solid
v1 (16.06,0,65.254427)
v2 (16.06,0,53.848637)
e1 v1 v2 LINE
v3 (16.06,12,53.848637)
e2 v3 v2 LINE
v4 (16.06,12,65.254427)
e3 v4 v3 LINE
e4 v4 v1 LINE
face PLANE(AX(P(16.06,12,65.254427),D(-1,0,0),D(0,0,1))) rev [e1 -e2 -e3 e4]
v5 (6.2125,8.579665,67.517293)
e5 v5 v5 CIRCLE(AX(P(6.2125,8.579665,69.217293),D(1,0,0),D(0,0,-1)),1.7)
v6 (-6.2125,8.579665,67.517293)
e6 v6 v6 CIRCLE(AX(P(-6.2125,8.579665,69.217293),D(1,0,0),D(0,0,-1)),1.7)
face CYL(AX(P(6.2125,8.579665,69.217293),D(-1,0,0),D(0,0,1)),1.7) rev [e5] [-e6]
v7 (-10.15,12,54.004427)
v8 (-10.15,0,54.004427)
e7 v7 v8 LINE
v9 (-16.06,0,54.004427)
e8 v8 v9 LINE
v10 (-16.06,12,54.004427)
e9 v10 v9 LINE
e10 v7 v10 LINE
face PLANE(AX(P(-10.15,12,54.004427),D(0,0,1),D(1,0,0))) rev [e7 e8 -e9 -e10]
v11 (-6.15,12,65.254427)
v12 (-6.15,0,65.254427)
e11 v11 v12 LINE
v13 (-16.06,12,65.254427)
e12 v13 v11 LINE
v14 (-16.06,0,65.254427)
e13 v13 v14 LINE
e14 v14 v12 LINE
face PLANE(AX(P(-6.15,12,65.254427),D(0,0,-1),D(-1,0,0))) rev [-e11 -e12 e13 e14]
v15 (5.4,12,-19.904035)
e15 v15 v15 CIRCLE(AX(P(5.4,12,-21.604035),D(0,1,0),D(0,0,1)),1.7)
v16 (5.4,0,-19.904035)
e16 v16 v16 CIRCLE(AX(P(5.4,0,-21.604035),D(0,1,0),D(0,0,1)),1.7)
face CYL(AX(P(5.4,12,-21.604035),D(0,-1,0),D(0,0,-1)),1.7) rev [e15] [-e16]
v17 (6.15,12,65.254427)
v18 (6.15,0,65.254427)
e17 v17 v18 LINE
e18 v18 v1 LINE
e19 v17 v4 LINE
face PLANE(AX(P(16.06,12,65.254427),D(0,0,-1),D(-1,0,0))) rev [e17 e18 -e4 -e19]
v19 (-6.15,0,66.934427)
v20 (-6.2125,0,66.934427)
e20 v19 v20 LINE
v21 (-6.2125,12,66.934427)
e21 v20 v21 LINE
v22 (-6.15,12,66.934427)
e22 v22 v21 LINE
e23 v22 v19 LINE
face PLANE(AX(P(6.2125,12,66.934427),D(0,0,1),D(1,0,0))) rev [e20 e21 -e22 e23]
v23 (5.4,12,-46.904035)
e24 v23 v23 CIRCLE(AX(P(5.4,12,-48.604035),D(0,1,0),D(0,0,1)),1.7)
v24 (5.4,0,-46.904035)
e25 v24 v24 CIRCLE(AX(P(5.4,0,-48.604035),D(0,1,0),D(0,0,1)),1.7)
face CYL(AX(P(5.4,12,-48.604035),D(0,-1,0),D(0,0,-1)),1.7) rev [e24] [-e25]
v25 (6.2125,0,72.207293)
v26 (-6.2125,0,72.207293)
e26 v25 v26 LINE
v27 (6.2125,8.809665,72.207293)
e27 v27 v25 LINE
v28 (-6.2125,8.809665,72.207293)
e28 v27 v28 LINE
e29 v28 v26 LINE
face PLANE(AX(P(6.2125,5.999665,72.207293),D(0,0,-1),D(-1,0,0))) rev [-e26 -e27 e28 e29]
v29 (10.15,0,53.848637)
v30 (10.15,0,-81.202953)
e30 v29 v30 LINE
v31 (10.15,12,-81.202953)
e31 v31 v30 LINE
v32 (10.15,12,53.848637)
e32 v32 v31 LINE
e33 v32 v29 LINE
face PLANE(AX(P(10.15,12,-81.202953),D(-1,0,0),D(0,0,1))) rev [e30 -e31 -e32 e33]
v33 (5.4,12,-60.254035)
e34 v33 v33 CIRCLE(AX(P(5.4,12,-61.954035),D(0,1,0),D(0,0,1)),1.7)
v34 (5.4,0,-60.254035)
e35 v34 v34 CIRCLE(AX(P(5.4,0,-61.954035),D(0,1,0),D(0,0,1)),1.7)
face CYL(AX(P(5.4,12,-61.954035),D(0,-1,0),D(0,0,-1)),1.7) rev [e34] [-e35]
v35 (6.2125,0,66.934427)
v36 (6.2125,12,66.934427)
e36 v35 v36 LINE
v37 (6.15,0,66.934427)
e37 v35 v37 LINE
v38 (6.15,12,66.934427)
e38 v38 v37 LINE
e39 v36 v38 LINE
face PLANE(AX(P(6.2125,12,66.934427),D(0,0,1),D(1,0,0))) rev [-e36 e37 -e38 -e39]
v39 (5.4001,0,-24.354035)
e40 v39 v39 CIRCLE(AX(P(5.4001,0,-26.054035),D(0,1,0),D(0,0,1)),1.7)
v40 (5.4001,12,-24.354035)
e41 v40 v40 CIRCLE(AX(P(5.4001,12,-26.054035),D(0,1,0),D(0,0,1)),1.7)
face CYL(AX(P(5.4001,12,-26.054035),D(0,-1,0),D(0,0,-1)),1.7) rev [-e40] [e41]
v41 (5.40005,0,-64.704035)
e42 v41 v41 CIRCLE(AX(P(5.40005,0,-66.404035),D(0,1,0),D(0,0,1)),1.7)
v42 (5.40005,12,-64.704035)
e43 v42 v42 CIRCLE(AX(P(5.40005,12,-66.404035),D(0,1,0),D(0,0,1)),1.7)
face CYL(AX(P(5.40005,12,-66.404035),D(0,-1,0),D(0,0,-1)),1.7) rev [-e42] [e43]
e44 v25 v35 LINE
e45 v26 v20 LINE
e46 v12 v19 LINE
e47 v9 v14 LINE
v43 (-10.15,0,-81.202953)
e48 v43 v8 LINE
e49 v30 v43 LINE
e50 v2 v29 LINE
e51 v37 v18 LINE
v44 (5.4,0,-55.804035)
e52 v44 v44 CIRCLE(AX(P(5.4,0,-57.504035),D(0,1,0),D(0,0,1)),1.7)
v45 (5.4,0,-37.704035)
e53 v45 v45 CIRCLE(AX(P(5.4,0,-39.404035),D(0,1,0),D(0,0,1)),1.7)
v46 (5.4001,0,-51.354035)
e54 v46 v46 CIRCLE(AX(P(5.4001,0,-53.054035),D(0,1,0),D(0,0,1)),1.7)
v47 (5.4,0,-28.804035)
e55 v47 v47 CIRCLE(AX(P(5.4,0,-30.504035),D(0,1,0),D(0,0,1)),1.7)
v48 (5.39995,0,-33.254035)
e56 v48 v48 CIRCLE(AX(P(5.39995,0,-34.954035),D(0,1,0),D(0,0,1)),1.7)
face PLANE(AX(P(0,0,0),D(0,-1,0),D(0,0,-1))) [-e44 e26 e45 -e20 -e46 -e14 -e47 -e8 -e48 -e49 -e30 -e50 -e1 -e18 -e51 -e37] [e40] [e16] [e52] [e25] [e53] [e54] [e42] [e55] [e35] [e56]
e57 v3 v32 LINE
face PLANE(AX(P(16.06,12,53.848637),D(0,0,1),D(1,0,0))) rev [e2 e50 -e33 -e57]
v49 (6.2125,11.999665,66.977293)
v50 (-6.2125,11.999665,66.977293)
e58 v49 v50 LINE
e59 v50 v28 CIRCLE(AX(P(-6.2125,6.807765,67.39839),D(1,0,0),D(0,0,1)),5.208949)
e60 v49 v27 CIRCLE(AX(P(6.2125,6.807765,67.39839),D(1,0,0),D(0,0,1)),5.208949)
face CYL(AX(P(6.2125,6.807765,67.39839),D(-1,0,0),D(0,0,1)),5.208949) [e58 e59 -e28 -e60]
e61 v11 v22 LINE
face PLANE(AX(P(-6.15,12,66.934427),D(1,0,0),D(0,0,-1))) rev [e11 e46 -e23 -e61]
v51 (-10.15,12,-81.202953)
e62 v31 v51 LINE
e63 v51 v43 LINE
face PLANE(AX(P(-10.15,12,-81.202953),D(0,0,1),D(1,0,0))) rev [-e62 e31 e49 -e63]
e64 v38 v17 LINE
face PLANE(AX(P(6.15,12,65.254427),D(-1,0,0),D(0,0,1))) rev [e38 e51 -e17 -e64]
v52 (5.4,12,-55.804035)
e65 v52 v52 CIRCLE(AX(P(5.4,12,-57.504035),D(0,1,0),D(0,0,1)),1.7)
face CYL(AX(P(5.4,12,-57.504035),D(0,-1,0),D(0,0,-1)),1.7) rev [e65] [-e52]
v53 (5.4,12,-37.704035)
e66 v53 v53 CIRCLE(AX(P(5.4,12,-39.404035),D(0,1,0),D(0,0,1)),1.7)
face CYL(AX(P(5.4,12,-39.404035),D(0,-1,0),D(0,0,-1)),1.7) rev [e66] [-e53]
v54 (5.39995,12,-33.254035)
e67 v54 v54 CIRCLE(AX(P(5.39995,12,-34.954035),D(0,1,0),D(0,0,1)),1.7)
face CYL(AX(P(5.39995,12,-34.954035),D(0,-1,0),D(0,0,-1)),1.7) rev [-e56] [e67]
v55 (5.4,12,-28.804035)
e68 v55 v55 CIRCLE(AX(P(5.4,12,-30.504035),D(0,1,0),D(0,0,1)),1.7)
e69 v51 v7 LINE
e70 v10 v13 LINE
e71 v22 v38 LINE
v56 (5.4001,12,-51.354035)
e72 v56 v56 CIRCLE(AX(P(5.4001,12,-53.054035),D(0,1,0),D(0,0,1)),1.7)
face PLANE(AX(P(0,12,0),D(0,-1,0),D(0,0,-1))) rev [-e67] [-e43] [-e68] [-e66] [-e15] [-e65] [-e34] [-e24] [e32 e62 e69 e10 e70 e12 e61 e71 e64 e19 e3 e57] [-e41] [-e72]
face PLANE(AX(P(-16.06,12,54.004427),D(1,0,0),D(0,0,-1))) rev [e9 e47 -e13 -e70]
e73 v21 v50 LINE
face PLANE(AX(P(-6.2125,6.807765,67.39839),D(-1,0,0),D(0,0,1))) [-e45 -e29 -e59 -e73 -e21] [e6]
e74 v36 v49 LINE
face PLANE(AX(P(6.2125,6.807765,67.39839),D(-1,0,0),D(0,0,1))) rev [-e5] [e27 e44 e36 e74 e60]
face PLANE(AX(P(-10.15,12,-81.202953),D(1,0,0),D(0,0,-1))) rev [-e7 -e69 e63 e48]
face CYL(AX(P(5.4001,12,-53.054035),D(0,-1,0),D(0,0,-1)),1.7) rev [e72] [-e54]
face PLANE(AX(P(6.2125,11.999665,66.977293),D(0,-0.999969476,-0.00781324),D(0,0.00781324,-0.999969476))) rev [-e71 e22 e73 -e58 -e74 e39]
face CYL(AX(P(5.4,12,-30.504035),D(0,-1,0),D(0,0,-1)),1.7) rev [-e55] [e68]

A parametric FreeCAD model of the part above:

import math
import FreeCAD as App
import Part
import Sketcher
from FreeCAD import Vector


def add_polygon(sketch, points):
    """Adds a closed chain of lines whose ends are joined by coincident constraints."""
    first, n = sketch.GeometryCount, len(points)
    for a, b in zip(points, points[1:] + points[:1]):
        sketch.addGeometry(Part.LineSegment(App.Vector(*a, 0), App.Vector(*b, 0)), False)
    for i in range(n):
        sketch.addConstraint(Sketcher.Constraint("Coincident", first + i, 2, first + (i + 1) % n, 1))

doc = App.newDocument("Part")
body = doc.addObject("PartDesign::Body", "Body")

# Sketch on XZ plane
sketch1 = doc.addObject("Sketcher::SketchObject", "Sketch")
body.addObject(sketch1)
sketch1.AttachmentSupport = (doc.XZ_Plane, [""])
sketch1.MapMode = "FlatFace"
add_polygon(sketch1, [(10.15, -81.202953), (-10.15, -81.202953), (-10.15, 54.004427), (-16.06, 54.004427), (-16.06, 65.254427), (-6.15, 65.254427), (-6.15, 66.934427), (6.15, 66.934427), (6.15, 65.254427), (16.06, 65.254427), (16.06, 53.848637), (10.15, 53.848637)])  # lines 0-11
sketch1.addGeometry(Part.Circle(Vector(5.4001, -26.054035, 0), Vector(0, 0, 1), 1.7), False)  # 12
sketch1.addGeometry(Part.Circle(Vector(5.4, -21.604035, 0), Vector(0, 0, 1), 1.7), False)  # 13
sketch1.addGeometry(Part.Circle(Vector(5.4, -30.504035, 0), Vector(0, 0, 1), 1.7), False)  # 14
sketch1.addGeometry(Part.Circle(Vector(5.39995, -34.954035, 0), Vector(0, 0, 1), 1.7), False)  # 15
sketch1.addGeometry(Part.Circle(Vector(5.4, -39.404035, 0), Vector(0, 0, 1), 1.7), False)  # 16
sketch1.addGeometry(Part.Circle(Vector(5.4001, -53.054035, 0), Vector(0, 0, 1), 1.7), False)  # 17
sketch1.addGeometry(Part.Circle(Vector(5.40005, -66.404035, 0), Vector(0, 0, 1), 1.7), False)  # 18
sketch1.addGeometry(Part.Circle(Vector(5.4, -48.604035, 0), Vector(0, 0, 1), 1.7), False)  # 19
sketch1.addGeometry(Part.Circle(Vector(5.4, -57.504035, 0), Vector(0, 0, 1), 1.7), False)  # 20
sketch1.addGeometry(Part.Circle(Vector(5.4, -61.954035, 0), Vector(0, 0, 1), 1.7), False)  # 21
sketch1.addConstraint([
    Sketcher.Constraint("Horizontal", 0),
    Sketcher.Constraint("Vertical", 1),
    Sketcher.Constraint("Horizontal", 2),
    Sketcher.Constraint("Vertical", 3),
    Sketcher.Constraint("Horizontal", 4),
    Sketcher.Constraint("Vertical", 5),
    Sketcher.Constraint("Horizontal", 6),
    Sketcher.Constraint("Vertical", 7),
    Sketcher.Constraint("Horizontal", 8),
    Sketcher.Constraint("Vertical", 9),
    Sketcher.Constraint("Horizontal", 10),
    Sketcher.Constraint("Vertical", 11),
    Sketcher.Constraint("Equal", 12, 13),
    Sketcher.Constraint("Equal", 13, 14),
    Sketcher.Constraint("Equal", 14, 15),
    Sketcher.Constraint("Equal", 15, 16),
    Sketcher.Constraint("Equal", 16, 17),
    Sketcher.Constraint("Equal", 17, 18),
    Sketcher.Constraint("Equal", 18, 19),
    Sketcher.Constraint("Equal", 19, 20),
    Sketcher.Constraint("Equal", 20, 21),
    Sketcher.Constraint("Symmetric", 4, 2, 7, 2, -2),
    Sketcher.Constraint("Vertical", 13, 3, 14, 3),
    Sketcher.Constraint("Vertical", 14, 3, 16, 3),
    Sketcher.Constraint("Vertical", 12, 3, 17, 3),
    Sketcher.Constraint("Vertical", 16, 3, 19, 3),
    Sketcher.Constraint("Vertical", 19, 3, 20, 3),
    Sketcher.Constraint("Vertical", 20, 3, 21, 3),
    Sketcher.Constraint("Equal", 4, 8),
    Sketcher.Constraint("Equal", 2, 10),
    Sketcher.Constraint("Diameter", 12, 3.4),
    Sketcher.Constraint("DistanceX", 0, 2, 0, 1, 20.3),
    Sketcher.Constraint("DistanceX", 6, 1, 6, 2, 12.3),
    Sketcher.Constraint("DistanceY", 17, 3, 12, 3, 27.0),
    Sketcher.Constraint("DistanceY", 18, 3, 16, 3, 27.0),
    Sketcher.Constraint("DistanceX", 2, 2, 2, 1, 5.91),
    Sketcher.Constraint("DistanceY", 3, 1, 3, 2, 11.25),
    Sketcher.Constraint("DistanceY", 5, 1, 5, 2, 1.68),
    Sketcher.Constraint("DistanceX", -1, 1, 13, 3, 5.4),
    Sketcher.Constraint("DistanceY", 14, 3, 13, 3, 8.9),
    Sketcher.Constraint("DistanceY", 15, 3, 12, 3, 8.9),
    Sketcher.Constraint("DistanceY", 16, 3, 14, 3, 8.9),
    Sketcher.Constraint("DistanceY", 19, 3, 16, 3, 9.2),
    Sketcher.Constraint("DistanceY", 20, 3, 19, 3, 8.9),
    Sketcher.Constraint("DistanceY", 21, 3, 17, 3, 8.9),
    Sketcher.Constraint("DistanceY", 12, 3, 13, 3, 4.45),
    Sketcher.Constraint("DistanceY", 1, 1, 1, 2, 135.20738),
    Sketcher.Constraint("DistanceY", 9, 2, 9, 1, 11.405791),
    Sketcher.Constraint("DistanceX", -1, 1, 12, 3, 5.4001),
    Sketcher.Constraint("DistanceX", 15, 3, 18, 3, 0.0001),
    Sketcher.Constraint("DistanceX", -1, 1, 15, 3, 5.39995),
    Sketcher.Constraint("DistanceY", 0, 2, 18, 3, 14.798918),
    Sketcher.Constraint("DistanceY", 12, 3, -1, 1, 26.054035),
])
pad1 = doc.addObject("PartDesign::Pad", "Pad")
body.addObject(pad1)
pad1.Profile = sketch1
pad1.Length = 12
pad1.Reversed = True

# Sketch on YZ plane
sketch2 = doc.addObject("Sketcher::SketchObject", "Sketch001")
body.addObject(sketch2)
sketch2.AttachmentSupport = (doc.YZ_Plane, [""])
sketch2.MapMode = "FlatFace"
sketch2.addGeometry([
    Part.ArcOfCircle(Part.Circle(Vector(6.807765, 67.39839, 0), Vector(0, 0, 1), 5.208949), math.radians(-4.636916), math.radians(67.398507)),  # 0
    Part.LineSegment(Vector(8.809665, 72.207293, 0), Vector(0, 72.207293, 0)),  # 1
    Part.LineSegment(Vector(0, 72.207293, 0), Vector(0, 66.934427, 0)),  # 2
    Part.LineSegment(Vector(0, 66.934427, 0), Vector(12, 66.934427, 0)),  # 3
    Part.LineSegment(Vector(12, 66.934427, 0), Vector(11.999665, 66.977293, 0)),  # 4
    Part.Circle(Vector(8.579665, 69.217293, 0), Vector(0, 0, 1), 1.7),  # 5
], False)
sketch2.addConstraint([
    Sketcher.Constraint("Coincident", 0, 2, 1, 1),
    Sketcher.Constraint("Coincident", 1, 2, 2, 1),
    Sketcher.Constraint("Coincident", 2, 2, 3, 1),
    Sketcher.Constraint("Coincident", 3, 2, 4, 1),
    Sketcher.Constraint("Coincident", 4, 2, 0, 1),
    Sketcher.Constraint("Horizontal", 1),
    Sketcher.Constraint("Vertical", 2),
    Sketcher.Constraint("Horizontal", 3),
    Sketcher.Constraint("PointOnObject", 1, 2, -2),
    Sketcher.Constraint("Diameter", 5, 3.4),
    Sketcher.Constraint("DistanceX", 3, 1, 3, 2, 12.0),
    Sketcher.Constraint("Radius", 0, 5.208949),
    Sketcher.Constraint("DistanceX", 5, 3, 0, 2, 0.23),
    Sketcher.Constraint("DistanceY", 5, 3, 0, 2, 2.99),
    Sketcher.Constraint("DistanceX", 5, 3, 4, 2, 3.42),
    Sketcher.Constraint("DistanceY", 4, 2, 5, 3, 2.24),
    Sketcher.Constraint("DistanceX", 1, 2, 1, 1, 8.809665),
    Sketcher.Constraint("DistanceY", 2, 2, 2, 1, 5.272866),
    Sketcher.Constraint("DistanceY", -1, 1, 0, 3, 67.39839),
])
pad2 = doc.addObject("PartDesign::Pad", "Pad001")
body.addObject(pad2)
pad2.Profile = sketch2
pad2.Length = 12.425
pad2.Midplane = True

doc.recompute()
